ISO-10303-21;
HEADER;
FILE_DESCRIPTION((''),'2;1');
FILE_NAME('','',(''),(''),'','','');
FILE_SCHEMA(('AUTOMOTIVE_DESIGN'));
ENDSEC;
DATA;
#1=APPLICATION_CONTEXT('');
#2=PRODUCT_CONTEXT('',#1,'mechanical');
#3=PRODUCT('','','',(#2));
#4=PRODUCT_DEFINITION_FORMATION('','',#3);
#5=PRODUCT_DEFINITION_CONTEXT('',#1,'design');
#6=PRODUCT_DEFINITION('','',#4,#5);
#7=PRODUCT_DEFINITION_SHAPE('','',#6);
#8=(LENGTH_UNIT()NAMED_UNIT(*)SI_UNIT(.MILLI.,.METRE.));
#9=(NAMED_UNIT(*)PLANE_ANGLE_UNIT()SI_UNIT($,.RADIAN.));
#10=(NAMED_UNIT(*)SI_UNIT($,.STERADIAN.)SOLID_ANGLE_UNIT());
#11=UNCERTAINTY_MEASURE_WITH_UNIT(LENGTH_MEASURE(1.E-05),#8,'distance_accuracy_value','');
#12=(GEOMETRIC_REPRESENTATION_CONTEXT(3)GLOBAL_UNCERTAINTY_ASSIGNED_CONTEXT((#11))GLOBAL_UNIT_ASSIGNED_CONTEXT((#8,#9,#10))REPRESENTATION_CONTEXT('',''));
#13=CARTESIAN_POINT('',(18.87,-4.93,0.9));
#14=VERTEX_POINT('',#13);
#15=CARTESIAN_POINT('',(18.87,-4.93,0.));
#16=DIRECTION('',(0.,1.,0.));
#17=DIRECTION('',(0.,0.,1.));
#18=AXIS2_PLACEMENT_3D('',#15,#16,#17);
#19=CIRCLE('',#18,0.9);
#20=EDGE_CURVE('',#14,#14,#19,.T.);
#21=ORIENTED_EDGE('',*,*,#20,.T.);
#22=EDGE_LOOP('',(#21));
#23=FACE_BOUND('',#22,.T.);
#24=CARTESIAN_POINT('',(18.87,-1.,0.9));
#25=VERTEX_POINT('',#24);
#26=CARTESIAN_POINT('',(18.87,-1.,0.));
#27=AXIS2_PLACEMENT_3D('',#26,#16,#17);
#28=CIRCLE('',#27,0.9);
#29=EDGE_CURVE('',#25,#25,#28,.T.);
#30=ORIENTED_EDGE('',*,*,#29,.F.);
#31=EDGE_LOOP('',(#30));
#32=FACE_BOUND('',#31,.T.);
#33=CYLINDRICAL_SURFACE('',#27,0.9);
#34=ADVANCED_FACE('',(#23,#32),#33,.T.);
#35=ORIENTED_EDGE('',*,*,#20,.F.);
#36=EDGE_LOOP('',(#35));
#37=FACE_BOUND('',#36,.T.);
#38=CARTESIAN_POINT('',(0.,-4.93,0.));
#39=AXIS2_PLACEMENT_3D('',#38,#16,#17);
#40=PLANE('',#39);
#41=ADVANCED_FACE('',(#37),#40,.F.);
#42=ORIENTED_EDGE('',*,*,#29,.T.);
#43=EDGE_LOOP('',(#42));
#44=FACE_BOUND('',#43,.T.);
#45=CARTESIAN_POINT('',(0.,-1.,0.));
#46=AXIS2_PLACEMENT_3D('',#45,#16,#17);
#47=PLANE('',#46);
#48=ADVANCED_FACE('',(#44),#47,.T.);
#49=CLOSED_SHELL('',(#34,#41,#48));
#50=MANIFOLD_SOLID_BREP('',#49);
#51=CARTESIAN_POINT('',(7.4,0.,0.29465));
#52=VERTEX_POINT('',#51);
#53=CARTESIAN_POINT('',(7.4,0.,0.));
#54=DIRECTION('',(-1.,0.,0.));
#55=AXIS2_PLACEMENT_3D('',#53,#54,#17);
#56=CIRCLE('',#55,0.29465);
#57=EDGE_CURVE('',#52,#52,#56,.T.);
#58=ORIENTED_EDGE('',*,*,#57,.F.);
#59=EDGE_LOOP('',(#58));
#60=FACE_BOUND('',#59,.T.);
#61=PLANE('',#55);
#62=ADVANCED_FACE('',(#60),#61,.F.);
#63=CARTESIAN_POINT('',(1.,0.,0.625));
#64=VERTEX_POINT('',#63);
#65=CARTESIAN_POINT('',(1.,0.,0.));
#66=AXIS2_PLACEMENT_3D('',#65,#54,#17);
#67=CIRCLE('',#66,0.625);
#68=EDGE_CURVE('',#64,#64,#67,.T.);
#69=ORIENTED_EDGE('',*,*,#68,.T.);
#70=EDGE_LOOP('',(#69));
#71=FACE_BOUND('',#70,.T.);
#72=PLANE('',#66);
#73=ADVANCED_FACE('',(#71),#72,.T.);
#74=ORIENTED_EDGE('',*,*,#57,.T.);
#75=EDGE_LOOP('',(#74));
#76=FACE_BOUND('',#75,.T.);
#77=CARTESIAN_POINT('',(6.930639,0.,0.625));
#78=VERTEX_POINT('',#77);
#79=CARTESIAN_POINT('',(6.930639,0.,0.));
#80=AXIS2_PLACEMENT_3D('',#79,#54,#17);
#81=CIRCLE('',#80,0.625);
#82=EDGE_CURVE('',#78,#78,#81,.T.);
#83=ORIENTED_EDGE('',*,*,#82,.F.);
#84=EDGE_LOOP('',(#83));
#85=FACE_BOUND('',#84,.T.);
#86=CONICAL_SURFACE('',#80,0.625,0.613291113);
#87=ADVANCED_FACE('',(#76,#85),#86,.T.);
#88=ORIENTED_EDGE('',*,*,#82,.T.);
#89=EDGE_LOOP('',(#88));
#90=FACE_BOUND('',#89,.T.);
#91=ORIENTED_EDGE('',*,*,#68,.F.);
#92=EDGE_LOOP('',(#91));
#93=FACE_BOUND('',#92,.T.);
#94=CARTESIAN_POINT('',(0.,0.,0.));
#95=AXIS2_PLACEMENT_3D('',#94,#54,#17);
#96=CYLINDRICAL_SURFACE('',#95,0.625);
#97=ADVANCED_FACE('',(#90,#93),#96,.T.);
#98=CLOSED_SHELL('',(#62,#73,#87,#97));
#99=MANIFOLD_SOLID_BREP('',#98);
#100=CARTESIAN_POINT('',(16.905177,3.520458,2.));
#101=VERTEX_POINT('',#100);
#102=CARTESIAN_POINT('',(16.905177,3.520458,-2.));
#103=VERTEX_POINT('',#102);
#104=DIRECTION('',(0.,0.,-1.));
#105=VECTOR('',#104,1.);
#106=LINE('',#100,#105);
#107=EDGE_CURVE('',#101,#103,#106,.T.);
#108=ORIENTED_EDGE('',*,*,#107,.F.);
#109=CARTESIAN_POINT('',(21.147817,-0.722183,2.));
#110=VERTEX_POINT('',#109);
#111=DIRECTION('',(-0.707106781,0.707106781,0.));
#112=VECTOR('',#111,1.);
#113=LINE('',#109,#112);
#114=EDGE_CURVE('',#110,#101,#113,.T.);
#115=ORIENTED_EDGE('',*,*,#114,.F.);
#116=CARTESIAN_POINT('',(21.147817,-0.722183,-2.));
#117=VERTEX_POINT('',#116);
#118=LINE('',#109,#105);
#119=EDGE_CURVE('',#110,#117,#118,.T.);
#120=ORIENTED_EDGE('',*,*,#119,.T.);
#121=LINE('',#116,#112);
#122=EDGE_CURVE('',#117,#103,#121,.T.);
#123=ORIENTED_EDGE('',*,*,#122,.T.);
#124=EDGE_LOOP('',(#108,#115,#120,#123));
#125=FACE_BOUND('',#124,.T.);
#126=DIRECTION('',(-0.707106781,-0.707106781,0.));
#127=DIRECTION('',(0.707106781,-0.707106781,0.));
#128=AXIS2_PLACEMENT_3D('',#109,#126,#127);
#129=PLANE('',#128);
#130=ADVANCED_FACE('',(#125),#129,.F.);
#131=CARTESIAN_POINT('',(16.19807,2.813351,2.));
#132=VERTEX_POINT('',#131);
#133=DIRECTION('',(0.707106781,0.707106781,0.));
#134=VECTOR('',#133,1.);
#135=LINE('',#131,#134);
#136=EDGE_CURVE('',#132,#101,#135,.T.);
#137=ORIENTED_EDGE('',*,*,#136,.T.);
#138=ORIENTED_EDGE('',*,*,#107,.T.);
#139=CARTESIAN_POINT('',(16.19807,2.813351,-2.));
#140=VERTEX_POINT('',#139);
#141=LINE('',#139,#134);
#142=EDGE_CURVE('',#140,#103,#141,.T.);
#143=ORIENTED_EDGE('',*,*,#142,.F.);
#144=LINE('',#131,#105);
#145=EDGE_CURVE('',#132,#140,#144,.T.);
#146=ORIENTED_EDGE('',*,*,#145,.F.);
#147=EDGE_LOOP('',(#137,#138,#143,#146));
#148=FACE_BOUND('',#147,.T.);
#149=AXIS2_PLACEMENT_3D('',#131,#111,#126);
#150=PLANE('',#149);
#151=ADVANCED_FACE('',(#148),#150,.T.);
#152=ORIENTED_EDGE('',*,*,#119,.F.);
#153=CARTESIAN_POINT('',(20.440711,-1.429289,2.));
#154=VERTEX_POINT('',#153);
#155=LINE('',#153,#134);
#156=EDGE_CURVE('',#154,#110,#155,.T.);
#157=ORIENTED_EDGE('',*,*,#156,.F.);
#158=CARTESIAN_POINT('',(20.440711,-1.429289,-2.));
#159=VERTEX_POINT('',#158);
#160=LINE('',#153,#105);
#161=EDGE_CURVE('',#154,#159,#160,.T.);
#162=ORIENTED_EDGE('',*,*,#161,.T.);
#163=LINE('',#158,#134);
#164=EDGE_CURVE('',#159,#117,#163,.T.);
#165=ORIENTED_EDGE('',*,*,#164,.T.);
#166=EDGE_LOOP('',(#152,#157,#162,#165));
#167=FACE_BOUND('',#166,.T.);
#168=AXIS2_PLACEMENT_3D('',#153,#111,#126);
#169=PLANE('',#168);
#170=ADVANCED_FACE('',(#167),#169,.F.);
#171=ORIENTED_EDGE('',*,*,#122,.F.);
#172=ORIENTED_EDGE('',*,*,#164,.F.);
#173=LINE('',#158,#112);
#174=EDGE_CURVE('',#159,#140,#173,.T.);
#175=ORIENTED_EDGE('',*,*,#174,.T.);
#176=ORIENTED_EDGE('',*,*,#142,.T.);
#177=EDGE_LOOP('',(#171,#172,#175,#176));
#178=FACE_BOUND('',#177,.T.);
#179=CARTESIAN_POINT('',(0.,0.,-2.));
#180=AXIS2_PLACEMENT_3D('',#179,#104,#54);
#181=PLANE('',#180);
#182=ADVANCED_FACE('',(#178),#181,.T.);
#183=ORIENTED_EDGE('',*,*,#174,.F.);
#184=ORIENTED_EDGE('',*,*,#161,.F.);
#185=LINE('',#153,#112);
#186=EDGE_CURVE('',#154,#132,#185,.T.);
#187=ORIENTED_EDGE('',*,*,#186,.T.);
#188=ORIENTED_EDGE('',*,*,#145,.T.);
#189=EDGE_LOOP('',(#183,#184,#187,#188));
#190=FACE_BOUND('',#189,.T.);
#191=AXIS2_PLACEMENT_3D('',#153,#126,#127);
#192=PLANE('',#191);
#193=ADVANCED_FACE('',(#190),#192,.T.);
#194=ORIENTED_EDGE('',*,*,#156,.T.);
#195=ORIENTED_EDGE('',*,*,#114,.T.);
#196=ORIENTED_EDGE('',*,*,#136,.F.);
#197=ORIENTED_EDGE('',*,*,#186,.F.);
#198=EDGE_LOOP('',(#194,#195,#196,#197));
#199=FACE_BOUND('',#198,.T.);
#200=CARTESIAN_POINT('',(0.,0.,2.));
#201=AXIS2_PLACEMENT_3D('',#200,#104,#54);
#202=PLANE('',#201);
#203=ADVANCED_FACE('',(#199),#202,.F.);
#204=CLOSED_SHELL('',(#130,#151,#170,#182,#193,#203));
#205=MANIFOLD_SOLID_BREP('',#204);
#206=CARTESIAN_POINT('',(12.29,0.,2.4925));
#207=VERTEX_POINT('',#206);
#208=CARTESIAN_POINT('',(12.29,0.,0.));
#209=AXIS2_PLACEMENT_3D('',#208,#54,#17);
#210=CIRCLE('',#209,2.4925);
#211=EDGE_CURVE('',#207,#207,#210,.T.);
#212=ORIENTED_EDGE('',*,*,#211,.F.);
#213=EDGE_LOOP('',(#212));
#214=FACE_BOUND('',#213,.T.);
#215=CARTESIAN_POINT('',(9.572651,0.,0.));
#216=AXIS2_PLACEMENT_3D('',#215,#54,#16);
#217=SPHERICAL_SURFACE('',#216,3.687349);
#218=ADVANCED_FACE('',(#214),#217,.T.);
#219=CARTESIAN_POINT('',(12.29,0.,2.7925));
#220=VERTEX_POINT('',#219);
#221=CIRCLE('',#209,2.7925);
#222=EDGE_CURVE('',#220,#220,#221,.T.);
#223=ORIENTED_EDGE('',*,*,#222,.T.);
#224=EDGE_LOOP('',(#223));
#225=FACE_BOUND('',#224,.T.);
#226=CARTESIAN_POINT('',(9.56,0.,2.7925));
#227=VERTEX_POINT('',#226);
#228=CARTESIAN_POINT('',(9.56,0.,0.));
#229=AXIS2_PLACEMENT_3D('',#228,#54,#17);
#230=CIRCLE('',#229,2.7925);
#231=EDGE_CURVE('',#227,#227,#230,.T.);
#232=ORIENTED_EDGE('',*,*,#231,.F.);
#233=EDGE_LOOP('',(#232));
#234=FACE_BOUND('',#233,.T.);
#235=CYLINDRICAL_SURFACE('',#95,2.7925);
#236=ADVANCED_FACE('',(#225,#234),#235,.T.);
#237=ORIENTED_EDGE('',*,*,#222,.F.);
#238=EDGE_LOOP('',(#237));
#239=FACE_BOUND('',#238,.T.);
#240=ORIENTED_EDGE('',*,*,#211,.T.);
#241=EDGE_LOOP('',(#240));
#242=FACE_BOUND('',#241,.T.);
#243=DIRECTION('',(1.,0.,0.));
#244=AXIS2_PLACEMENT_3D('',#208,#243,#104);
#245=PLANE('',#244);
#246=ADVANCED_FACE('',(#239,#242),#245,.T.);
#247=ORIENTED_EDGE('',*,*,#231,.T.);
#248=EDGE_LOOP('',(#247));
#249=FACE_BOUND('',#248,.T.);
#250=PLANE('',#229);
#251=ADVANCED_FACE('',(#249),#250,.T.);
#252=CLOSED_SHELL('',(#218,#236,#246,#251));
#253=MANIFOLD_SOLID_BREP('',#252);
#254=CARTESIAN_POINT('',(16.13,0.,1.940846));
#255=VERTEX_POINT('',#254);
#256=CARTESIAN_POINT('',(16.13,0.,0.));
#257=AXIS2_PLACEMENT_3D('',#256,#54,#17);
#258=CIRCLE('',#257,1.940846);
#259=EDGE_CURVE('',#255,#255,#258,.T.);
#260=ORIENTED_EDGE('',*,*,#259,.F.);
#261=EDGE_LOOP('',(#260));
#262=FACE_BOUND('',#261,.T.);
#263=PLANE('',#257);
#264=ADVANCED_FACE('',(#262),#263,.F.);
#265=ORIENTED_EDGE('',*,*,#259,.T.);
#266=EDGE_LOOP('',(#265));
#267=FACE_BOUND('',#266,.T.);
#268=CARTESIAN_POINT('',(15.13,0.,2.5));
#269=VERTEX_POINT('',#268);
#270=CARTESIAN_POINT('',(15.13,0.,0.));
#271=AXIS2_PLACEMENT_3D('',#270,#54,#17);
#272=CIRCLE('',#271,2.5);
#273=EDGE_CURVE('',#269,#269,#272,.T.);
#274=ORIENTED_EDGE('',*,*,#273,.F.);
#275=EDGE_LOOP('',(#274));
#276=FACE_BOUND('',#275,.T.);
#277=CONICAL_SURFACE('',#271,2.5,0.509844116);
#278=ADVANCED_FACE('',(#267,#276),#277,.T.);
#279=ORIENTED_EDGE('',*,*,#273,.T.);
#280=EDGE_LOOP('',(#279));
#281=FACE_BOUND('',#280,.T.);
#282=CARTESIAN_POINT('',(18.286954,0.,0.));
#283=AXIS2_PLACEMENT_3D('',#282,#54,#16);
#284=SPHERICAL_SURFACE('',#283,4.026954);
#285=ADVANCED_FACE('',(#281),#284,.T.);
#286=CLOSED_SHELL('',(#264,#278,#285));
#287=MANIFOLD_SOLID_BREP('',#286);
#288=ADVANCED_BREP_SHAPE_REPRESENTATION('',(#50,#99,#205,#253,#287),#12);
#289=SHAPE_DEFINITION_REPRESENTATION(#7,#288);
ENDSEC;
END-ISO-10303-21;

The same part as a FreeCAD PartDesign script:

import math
import FreeCAD as App
import Part
import Sketcher

V = App.Vector
Q = App.Units.Quantity

doc = App.newDocument("Part")
body = doc.addObject("PartDesign::Body", "Body")

# Sketch on XY plane
sketch1 = body.newObject("Sketcher::SketchObject", "Sketch")
sketch1.AttachmentSupport = (doc.getObject("XY_Plane"), [""])
sketch1.MapMode = "FlatFace"
sketch1.addGeometry([
    Part.LineSegment(V(16.2, 2.8, 0), V(20.4, -1.4, 0)),
    Part.LineSegment(V(20.4, -1.4, 0), V(21.1, -0.7, 0)),
    Part.LineSegment(V(21.1, -0.7, 0), V(16.9, 3.5, 0)),
    Part.LineSegment(V(16.9, 3.5, 0), V(16.2, 2.8, 0)),
], False)
sketch1.addConstraint([
    Sketcher.Constraint("Coincident", 0, 2, 1, 1),
    Sketcher.Constraint("Coincident", 1, 2, 2, 1),
    Sketcher.Constraint("Coincident", 2, 2, 3, 1),
    Sketcher.Constraint("Coincident", 3, 2, 0, 1),
    Sketcher.Constraint("Perpendicular", 0, 1),
    Sketcher.Constraint("Perpendicular", 1, 2),
    Sketcher.Constraint("Perpendicular", 2, 3),
    Sketcher.Constraint("Angle", 0, Q("-45 deg")),
    Sketcher.Constraint("Distance", 0, Q("6 mm")),
    Sketcher.Constraint("Distance", 1, Q("1 mm")),
    Sketcher.Constraint("DistanceX", -1, 1, 0, 2, Q("20.440711 mm")),
    Sketcher.Constraint("DistanceY", 0, 2, -1, 1, Q("1.429289 mm")),
])
pad1 = body.newObject("PartDesign::Pad", "Pad")
pad1.Profile = sketch1
pad1.Length = 4
pad1.Midplane = True
body2 = doc.addObject("PartDesign::Body", "Body001")
body2.AllowCompound = True

# Sketch on XY plane
sketch2 = body2.newObject("Sketcher::SketchObject", "Sketch001")
sketch2.AttachmentSupport = (doc.getObject("XY_Plane001"), [""])
sketch2.MapMode = "FlatFace"
sketch2.addGeometry([
    Part.LineSegment(V(16.13, 0, 0), V(16.13, 1.94, 0)),  # 0
    Part.LineSegment(V(16.13, 1.94, 0), V(15.13, 2.5, 0)),  # 1
    Part.ArcOfCircle(Part.Circle(V(18.29, 0, 0), V(0, 0, 1), 4.03), math.radians(142), math.radians(180)),  # 2
    Part.LineSegment(V(14.26, 0, 0), V(16.13, 0, 0)),  # 3
    Part.ArcOfCircle(Part.Circle(V(9.57, 0, 0), V(0, 0, 1), 3.69), math.radians(0), math.radians(43)),  # 4
    Part.LineSegment(V(12.29, 2.49, 0), V(12.29, 2.79, 0)),  # 5
    Part.LineSegment(V(12.29, 2.79, 0), V(9.56, 2.79, 0)),  # 6
    Part.LineSegment(V(9.56, 2.79, 0), V(9.56, 0, 0)),  # 7
    Part.LineSegment(V(9.56, 0, 0), V(13.26, 0, 0)),  # 8
    Part.LineSegment(V(1, 0.62, 0), V(1, 0, 0)),  # 9
    Part.LineSegment(V(1, 0, 0), V(7.4, 0, 0)),  # 10
    Part.LineSegment(V(7.4, 0, 0), V(7.4, 0.29, 0)),  # 11
    Part.LineSegment(V(7.4, 0.29, 0), V(6.93, 0.62, 0)),  # 12
    Part.LineSegment(V(6.93, 0.62, 0), V(1, 0.62, 0)),  # 13
], False)
sketch2.addConstraint([
    Sketcher.Constraint("Coincident", 0, 2, 1, 1),
    Sketcher.Constraint("Coincident", 1, 2, 2, 1),
    Sketcher.Constraint("Coincident", 2, 2, 3, 1),
    Sketcher.Constraint("Coincident", 3, 2, 0, 1),
    Sketcher.Constraint("Coincident", 4, 2, 5, 1),
    Sketcher.Constraint("Coincident", 5, 2, 6, 1),
    Sketcher.Constraint("Coincident", 6, 2, 7, 1),
    Sketcher.Constraint("Coincident", 7, 2, 8, 1),
    Sketcher.Constraint("Coincident", 8, 2, 4, 1),
    Sketcher.Constraint("Coincident", 9, 2, 10, 1),
    Sketcher.Constraint("Coincident", 10, 2, 11, 1),
    Sketcher.Constraint("Coincident", 11, 2, 12, 1),
    Sketcher.Constraint("Coincident", 12, 2, 13, 1),
    Sketcher.Constraint("Coincident", 13, 2, 9, 1),
    Sketcher.Constraint("Vertical", 0),
    Sketcher.Constraint("Horizontal", 3),
    Sketcher.Constraint("Vertical", 5),
    Sketcher.Constraint("Horizontal", 6),
    Sketcher.Constraint("Vertical", 7),
    Sketcher.Constraint("Horizontal", 8),
    Sketcher.Constraint("Vertical", 9),
    Sketcher.Constraint("Horizontal", 10),
    Sketcher.Constraint("Vertical", 11),
    Sketcher.Constraint("Horizontal", 13),
    Sketcher.Constraint("PointOnObject", 2, 3, -1),
    Sketcher.Constraint("PointOnObject", 4, 3, -1),
    Sketcher.Constraint("PointOnObject", 2, 2, -1),
    Sketcher.Constraint("PointOnObject", 7, 2, -1),
    Sketcher.Constraint("PointOnObject", 9, 2, -1),
    Sketcher.Constraint("DistanceX", 8, 1, 8, 2, Q("3.7 mm")),
    Sketcher.Constraint("DistanceX", 10, 1, 10, 2, Q("6.4 mm")),
    Sketcher.Constraint("DistanceY", 5, 1, 5, 2, Q("0.3 mm")),
    Sketcher.Constraint("DistanceX", -1, 1, 9, 2, Q("1 mm")),
    Sketcher.Constraint("DistanceX", 1, 2, 0, 2, Q("1 mm")),
    Sketcher.Constraint("DistanceX", 8, 2, 2, 2, Q("1 mm")),
    Sketcher.Constraint("DistanceX", 3, 1, 3, 2, Q("1.87 mm")),
    Sketcher.Constraint("DistanceX", 6, 2, 6, 1, Q("2.73 mm")),
    Sketcher.Constraint("DistanceY", -1, 1, 1, 2, Q("2.5 mm")),
    Sketcher.Constraint("DistanceY", 9, 2, 9, 1, Q("0.625 mm")),
    Sketcher.Constraint("DistanceX", -1, 1, 0, 2, Q("16.13 mm")),
    Sketcher.Constraint("Radius", 4, Q("3.687349 mm")),
    Sketcher.Constraint("DistanceX", 13, 2, 13, 1, Q("5.930639 mm")),
    Sketcher.Constraint("DistanceY", 11, 1, 11, 2, Q("0.29465 mm")),
    Sketcher.Constraint("Distance", 1, Q("1.145711 mm")),
])
revolution = body2.newObject("PartDesign::Revolution", "Revolution")
revolution.Profile = sketch2
revolution.ReferenceAxis = (sketch2, ["H_Axis"])
revolution.Angle = 360
body3 = doc.addObject("PartDesign::Body", "Body002")

# Sketch on XY plane
sketch3 = body3.newObject("Sketcher::SketchObject", "Sketch002")
sketch3.AttachmentSupport = (doc.getObject("XY_Plane002"), [""])
sketch3.MapMode = "FlatFace"
sketch3.addGeometry([
    Part.LineSegment(V(18, -1, 0), V(18, -4.9, 0)),
    Part.LineSegment(V(18, -4.9, 0), V(18.9, -4.9, 0)),
    Part.LineSegment(V(18.9, -4.9, 0), V(18.9, -1, 0)),
    Part.LineSegment(V(18.9, -1, 0), V(18, -1, 0)),
], False)
sketch3.addGeometry(Part.LineSegment(V(18.9, -1, 0), V(18.9, -4.9, 0)), True)  # axis
sketch3.addConstraint([
    Sketcher.Constraint("Coincident", 0, 2, 1, 1),
    Sketcher.Constraint("Coincident", 1, 2, 2, 1),
    Sketcher.Constraint("Coincident", 2, 2, 3, 1),
    Sketcher.Constraint("Coincident", 3, 2, 0, 1),
    Sketcher.Constraint("Vertical", 0),
    Sketcher.Constraint("Horizontal", 1),
    Sketcher.Constraint("Vertical", 2),
    Sketcher.Constraint("Horizontal", 3),
    Sketcher.Constraint("Vertical", 4),
    Sketcher.Constraint("Coincident", 4, 1, 2, 2),
    Sketcher.Constraint("Horizontal", 0, 2, 4, 2),
    Sketcher.Constraint("DistanceX", 1, 1, 1, 2, Q("0.9 mm")),
    Sketcher.Constraint("DistanceY", 2, 2, -1, 1, Q("1 mm")),
    Sketcher.Constraint("DistanceY", 0, 2, 0, 1, Q("3.93 mm")),
    Sketcher.Constraint("DistanceX", -1, 1, 0, 2, Q("17.97 mm")),
])
revolution2 = body3.newObject("PartDesign::Revolution", "Revolution001")
revolution2.Profile = sketch3
revolution2.ReferenceAxis = (sketch3, ["Axis0"])
revolution2.Angle = 360

doc.recompute()
